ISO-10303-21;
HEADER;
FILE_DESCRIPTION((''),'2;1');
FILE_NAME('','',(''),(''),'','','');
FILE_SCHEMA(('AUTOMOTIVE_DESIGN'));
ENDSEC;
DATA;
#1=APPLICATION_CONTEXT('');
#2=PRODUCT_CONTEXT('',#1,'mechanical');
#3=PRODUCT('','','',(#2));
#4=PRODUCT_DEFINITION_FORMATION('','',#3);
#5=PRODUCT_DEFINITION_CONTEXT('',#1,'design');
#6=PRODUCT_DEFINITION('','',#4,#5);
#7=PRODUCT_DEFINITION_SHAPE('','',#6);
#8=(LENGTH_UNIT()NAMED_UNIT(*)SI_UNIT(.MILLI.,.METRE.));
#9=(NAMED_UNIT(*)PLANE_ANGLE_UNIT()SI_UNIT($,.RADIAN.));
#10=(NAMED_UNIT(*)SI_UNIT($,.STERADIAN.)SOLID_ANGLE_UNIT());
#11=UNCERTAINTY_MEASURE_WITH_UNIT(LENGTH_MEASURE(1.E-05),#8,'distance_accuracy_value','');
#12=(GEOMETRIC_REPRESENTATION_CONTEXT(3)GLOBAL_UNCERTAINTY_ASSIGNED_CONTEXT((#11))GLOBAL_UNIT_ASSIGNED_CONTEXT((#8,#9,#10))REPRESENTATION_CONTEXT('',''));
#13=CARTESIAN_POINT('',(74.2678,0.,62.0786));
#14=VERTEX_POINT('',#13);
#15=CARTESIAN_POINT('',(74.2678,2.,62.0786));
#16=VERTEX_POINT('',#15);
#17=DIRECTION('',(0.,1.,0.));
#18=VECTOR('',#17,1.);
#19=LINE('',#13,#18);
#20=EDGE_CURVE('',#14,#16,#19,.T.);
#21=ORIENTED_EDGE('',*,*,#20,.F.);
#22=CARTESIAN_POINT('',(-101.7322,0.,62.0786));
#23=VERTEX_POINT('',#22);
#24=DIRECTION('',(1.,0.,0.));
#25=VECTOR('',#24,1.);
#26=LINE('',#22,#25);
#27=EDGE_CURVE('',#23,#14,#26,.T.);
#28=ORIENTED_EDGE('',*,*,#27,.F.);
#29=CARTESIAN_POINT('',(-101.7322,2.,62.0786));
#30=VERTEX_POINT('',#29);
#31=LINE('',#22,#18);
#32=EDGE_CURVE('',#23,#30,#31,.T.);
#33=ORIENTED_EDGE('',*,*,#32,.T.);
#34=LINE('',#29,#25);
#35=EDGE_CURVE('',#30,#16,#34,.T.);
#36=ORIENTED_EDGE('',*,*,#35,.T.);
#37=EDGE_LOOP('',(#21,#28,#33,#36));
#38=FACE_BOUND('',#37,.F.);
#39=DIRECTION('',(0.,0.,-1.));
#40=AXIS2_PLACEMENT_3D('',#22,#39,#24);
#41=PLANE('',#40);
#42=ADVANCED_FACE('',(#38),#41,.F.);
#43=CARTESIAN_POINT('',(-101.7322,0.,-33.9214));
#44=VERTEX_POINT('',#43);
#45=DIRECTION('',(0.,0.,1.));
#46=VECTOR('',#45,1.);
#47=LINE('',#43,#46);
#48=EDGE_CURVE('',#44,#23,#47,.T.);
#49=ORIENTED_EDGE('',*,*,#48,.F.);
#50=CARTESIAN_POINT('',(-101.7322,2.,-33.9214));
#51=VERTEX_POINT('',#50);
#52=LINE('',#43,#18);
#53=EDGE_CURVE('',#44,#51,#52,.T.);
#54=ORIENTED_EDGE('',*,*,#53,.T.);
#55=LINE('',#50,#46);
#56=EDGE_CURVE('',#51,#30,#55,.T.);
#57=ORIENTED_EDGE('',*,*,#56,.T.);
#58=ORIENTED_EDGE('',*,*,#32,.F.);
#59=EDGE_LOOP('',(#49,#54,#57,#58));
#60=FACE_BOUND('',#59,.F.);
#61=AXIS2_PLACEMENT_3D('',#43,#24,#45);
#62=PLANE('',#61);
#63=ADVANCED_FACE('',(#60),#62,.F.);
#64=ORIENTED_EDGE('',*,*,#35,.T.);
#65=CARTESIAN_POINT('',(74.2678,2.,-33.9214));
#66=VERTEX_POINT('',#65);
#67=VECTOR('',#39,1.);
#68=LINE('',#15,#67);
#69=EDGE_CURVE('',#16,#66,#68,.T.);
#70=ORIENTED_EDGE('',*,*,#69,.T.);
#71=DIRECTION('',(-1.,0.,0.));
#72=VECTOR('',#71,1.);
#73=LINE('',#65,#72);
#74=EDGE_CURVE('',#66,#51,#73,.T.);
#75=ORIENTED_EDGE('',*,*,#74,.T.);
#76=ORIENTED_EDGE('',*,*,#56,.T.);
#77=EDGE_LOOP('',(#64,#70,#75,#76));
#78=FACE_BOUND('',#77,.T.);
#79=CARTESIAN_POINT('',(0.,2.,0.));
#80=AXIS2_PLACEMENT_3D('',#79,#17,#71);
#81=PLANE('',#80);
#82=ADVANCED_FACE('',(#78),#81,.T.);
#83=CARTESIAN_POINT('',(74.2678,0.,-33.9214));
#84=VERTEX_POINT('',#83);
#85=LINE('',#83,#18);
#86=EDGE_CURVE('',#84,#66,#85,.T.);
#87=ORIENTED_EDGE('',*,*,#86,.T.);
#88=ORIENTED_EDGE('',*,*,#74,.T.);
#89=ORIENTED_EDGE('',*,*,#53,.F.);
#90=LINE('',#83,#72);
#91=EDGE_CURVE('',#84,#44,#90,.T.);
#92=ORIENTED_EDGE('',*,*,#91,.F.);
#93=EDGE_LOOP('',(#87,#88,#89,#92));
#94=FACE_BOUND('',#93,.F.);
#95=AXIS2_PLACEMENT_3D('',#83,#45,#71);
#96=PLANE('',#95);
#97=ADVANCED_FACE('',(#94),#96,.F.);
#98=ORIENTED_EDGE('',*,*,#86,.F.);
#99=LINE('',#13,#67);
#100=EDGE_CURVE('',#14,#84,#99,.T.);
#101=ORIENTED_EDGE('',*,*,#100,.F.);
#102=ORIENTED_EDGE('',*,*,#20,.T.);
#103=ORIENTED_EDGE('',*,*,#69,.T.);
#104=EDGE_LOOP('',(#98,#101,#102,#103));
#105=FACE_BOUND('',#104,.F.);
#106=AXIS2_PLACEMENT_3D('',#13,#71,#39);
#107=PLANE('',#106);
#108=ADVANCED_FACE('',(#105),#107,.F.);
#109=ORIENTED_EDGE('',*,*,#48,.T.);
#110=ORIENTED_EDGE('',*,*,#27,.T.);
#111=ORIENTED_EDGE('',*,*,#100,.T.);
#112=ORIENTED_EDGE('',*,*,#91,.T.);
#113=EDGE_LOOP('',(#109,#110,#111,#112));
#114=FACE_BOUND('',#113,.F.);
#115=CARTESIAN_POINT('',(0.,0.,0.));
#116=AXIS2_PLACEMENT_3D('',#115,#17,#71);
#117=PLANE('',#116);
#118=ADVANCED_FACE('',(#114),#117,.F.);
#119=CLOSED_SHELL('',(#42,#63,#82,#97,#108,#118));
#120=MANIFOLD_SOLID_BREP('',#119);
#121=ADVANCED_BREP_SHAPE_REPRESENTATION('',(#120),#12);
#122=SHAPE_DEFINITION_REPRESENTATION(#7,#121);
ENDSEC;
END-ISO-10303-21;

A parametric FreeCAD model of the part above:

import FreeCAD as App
import Part
import Sketcher
from FreeCAD import Vector
Q = App.Units.Quantity

doc = App.newDocument("Part")
params = doc.addObject("Spreadsheet::Sheet", "Params")
for row, (alias, value) in enumerate([
    ("sketch1_width", "176 mm"),
    ("sketch1_height", "96 mm"),
    ("pad1_length", "2 mm"),
], start=1):
    params.set(f"A{row}", alias)
    params.set(f"B{row}", "=" + value)
    params.setAlias(f"B{row}", alias)

body = doc.addObject("PartDesign::Body", "Body")

sketch1 = doc.addObject("Sketcher::SketchObject", "Sketch")
body.addObject(sketch1)
sketch1.AttachmentSupport = (doc.XZ_Plane, [""])
sketch1.MapMode = "FlatFace"
sketch1.addGeometry([
    Part.LineSegment(Vector(-101.7322, -33.9214, 0), Vector(-101.7322, 62.0786, 0)),
    Part.LineSegment(Vector(-101.7322, 62.0786, 0), Vector(74.2678, 62.0786, 0)),
    Part.LineSegment(Vector(74.2678, 62.0786, 0), Vector(74.2678, -33.9214, 0)),
    Part.LineSegment(Vector(74.2678, -33.9214, 0), Vector(-101.7322, -33.9214, 0)),
], False)
sketch1.addConstraint([
    Sketcher.Constraint("Coincident", 0, 2, 1, 1),
    Sketcher.Constraint("Coincident", 1, 2, 2, 1),
    Sketcher.Constraint("Coincident", 2, 2, 3, 1),
    Sketcher.Constraint("Coincident", 3, 2, 0, 1),
    Sketcher.Constraint("Vertical", 0),
    Sketcher.Constraint("Horizontal", 1),
    Sketcher.Constraint("Vertical", 2),
    Sketcher.Constraint("Horizontal", 3),
    Sketcher.Constraint("DistanceX", 1, 1, 1, 2, Q("176 mm")),
    Sketcher.Constraint("DistanceY", 0, 1, 0, 2, Q("96 mm")),
    Sketcher.Constraint("DistanceX", 0, 2, -1, 1, Q("101.7322 mm")),
    Sketcher.Constraint("DistanceY", -1, 1, 0, 2, Q("62.0786 mm")),
])
sketch1.setExpression("Constraints[8]", "Params.sketch1_width")
sketch1.setExpression("Constraints[9]", "Params.sketch1_height")
pad1 = doc.addObject("PartDesign::Pad", "Pad")
body.addObject(pad1)
pad1.Profile = sketch1
pad1.setExpression("Length", "Params.pad1_length")
pad1.Reversed = True

doc.recompute()
